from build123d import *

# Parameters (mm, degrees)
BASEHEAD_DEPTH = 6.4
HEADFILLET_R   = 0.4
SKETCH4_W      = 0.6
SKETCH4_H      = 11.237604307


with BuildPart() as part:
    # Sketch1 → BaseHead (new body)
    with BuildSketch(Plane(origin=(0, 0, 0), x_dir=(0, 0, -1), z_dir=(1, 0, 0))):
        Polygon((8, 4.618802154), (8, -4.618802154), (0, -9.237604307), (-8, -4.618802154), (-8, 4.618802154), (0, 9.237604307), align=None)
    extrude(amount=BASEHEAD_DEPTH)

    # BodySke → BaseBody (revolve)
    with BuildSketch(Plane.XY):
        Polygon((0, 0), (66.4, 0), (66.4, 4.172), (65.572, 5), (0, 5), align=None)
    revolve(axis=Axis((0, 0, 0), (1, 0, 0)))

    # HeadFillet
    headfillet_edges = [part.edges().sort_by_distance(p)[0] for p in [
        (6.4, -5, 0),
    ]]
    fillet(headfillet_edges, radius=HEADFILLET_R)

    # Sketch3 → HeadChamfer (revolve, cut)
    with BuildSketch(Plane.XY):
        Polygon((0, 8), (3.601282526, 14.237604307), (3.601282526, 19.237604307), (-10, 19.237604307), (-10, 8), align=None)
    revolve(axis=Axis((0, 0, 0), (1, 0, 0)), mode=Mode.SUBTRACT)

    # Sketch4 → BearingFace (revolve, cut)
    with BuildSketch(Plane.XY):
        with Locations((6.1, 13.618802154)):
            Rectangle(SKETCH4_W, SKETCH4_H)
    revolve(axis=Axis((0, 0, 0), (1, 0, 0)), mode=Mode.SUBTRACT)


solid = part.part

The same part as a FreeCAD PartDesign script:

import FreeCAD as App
import Part
import Sketcher
from FreeCAD import Vector
Q = App.Units.Quantity


def edges_at(feature, points):
    """Names of the edges that pass closest to the given points."""
    edges = feature.Shape.Edges
    near = lambda p: min(range(len(edges)), key=lambda i: edges[i].distToShape(Part.Vertex(*p))[0])
    return sorted({f"Edge{near(p) + 1}" for p in points})


def add_polygon(sketch, points):
    """Adds a closed chain of lines whose ends are joined by coincident constraints."""
    first, n = sketch.GeometryCount, len(points)
    for a, b in zip(points, points[1:] + points[:1]):
        sketch.addGeometry(Part.LineSegment(App.Vector(*a, 0), App.Vector(*b, 0)), False)
    for i in range(n):
        sketch.addConstraint(Sketcher.Constraint("Coincident", first + i, 2, first + (i + 1) % n, 1))

doc = App.newDocument("Part")
body = doc.addObject("PartDesign::Body", "Body")

sketch1 = doc.addObject("Sketcher::SketchObject", "Sketch")
body.addObject(sketch1)
sketch1.AttachmentSupport = (doc.YZ_Plane, [""])
sketch1.MapMode = "FlatFace"
add_polygon(sketch1, [(-5, -8), (5, -8), (9, 0), (5, 8), (-5, 8), (-9, 0)])
sketch1.addConstraint([
    Sketcher.Constraint("Horizontal", 0),
    Sketcher.Constraint("Horizontal", 3),
    Sketcher.Constraint("Symmetric", 0, 2, 3, 2, -1, 1),
    Sketcher.Constraint("Symmetric", 1, 2, 4, 2, -1, 1),
    Sketcher.Constraint("PointOnObject", 1, 2, -1),
    Sketcher.Constraint("Parallel", 2, 5),
    Sketcher.Constraint("Vertical", 0, 2, 2, 2),
    Sketcher.Constraint("Angle", 1, Q("60 deg")),
    Sketcher.Constraint("DistanceY", 0, 2, -1, 1, Q("8 mm")),
    Sketcher.Constraint("DistanceX", 0, 1, 0, 2, Q("9.237604 mm")),
])
pad1 = doc.addObject("PartDesign::Pad", "Pad")
body.addObject(pad1)
pad1.Profile = sketch1
pad1.Length = 6.4

sketch2 = doc.addObject("Sketcher::SketchObject", "Sketch001")
body.addObject(sketch2)
sketch2.AttachmentSupport = (doc.XY_Plane, [""])
sketch2.MapMode = "FlatFace"
add_polygon(sketch2, [(0, 0), (66.4, 0), (66.4, 4.2), (65.6, 5), (0, 5)])
sketch2.addConstraint([
    Sketcher.Constraint("Horizontal", 0),
    Sketcher.Constraint("Vertical", 1),
    Sketcher.Constraint("Horizontal", 3),
    Sketcher.Constraint("Vertical", 4),
    Sketcher.Constraint("Coincident", 4, 2, -1, 1),
    Sketcher.Constraint("DistanceY", 4, 2, 4, 1, Q("5 mm")),
    Sketcher.Constraint("Angle", 2, Q("135 deg")),
    Sketcher.Constraint("DistanceX", 0, 1, 0, 2, Q("66.4 mm")),
    Sketcher.Constraint("DistanceX", 3, 2, 3, 1, Q("65.572 mm")),
])
revolution = doc.addObject("PartDesign::Revolution", "Revolution")
body.addObject(revolution)
revolution.Profile = sketch2
revolution.ReferenceAxis = (sketch2, ["H_Axis"])
revolution.Angle = 360
doc.recompute()

fillet = doc.addObject("PartDesign::Fillet", "Fillet")
body.addObject(fillet)
fillet.Base = (revolution, edges_at(revolution, [(6.4, -5, 0)]))
fillet.Radius = 0.4

sketch3 = doc.addObject("Sketcher::SketchObject", "Sketch002")
body.addObject(sketch3)
sketch3.AttachmentSupport = (doc.XY_Plane, [""])
sketch3.MapMode = "FlatFace"
add_polygon(sketch3, [(0, 8), (4, 14), (4, 19), (-10, 19), (-10, 8)])
sketch3.addConstraint([
    Sketcher.Constraint("Vertical", 1),
    Sketcher.Constraint("Horizontal", 2),
    Sketcher.Constraint("Vertical", 3),
    Sketcher.Constraint("Horizontal", 4),
    Sketcher.Constraint("PointOnObject", 4, 2, -2),
    Sketcher.Constraint("DistanceX", 4, 1, 4, 2, Q("10 mm")),
    Sketcher.Constraint("DistanceY", 1, 1, 1, 2, Q("5 mm")),
    Sketcher.Constraint("Angle", 0, Q("60 deg")),
    Sketcher.Constraint("DistanceY", -1, 1, 3, 2, Q("8 mm")),
    Sketcher.Constraint("DistanceX", 2, 2, 2, 1, Q("13.601283 mm")),
])
groove = doc.addObject("PartDesign::Groove", "Groove")
body.addObject(groove)
groove.Profile = sketch3
groove.ReferenceAxis = (sketch3, ["H_Axis"])
groove.Angle = 360

sketch4 = doc.addObject("Sketcher::SketchObject", "Sketch003")
body.addObject(sketch4)
sketch4.AttachmentSupport = (doc.XY_Plane, [""])
sketch4.MapMode = "FlatFace"
add_polygon(sketch4, [(5.8, 19.2), (5.8, 8), (6.4, 8), (6.4, 19.2)])
sketch4.addConstraint([
    Sketcher.Constraint("Vertical", 0),
    Sketcher.Constraint("Horizontal", 1),
    Sketcher.Constraint("Vertical", 2),
    Sketcher.Constraint("Horizontal", 3),
    Sketcher.Constraint("DistanceX", 1, 1, 1, 2, Q("0.6 mm")),
    Sketcher.Constraint("DistanceY", -1, 1, 0, 2, Q("8 mm")),
    Sketcher.Constraint("DistanceX", -1, 1, 0, 2, Q("5.8 mm")),
    Sketcher.Constraint("DistanceY", 0, 2, 0, 1, Q("11.237604 mm")),
])
groove2 = doc.addObject("PartDesign::Groove", "Groove001")
body.addObject(groove2)
groove2.Profile = sketch4
groove2.ReferenceAxis = (sketch4, ["H_Axis"])
groove2.Angle = 360

doc.recompute()
